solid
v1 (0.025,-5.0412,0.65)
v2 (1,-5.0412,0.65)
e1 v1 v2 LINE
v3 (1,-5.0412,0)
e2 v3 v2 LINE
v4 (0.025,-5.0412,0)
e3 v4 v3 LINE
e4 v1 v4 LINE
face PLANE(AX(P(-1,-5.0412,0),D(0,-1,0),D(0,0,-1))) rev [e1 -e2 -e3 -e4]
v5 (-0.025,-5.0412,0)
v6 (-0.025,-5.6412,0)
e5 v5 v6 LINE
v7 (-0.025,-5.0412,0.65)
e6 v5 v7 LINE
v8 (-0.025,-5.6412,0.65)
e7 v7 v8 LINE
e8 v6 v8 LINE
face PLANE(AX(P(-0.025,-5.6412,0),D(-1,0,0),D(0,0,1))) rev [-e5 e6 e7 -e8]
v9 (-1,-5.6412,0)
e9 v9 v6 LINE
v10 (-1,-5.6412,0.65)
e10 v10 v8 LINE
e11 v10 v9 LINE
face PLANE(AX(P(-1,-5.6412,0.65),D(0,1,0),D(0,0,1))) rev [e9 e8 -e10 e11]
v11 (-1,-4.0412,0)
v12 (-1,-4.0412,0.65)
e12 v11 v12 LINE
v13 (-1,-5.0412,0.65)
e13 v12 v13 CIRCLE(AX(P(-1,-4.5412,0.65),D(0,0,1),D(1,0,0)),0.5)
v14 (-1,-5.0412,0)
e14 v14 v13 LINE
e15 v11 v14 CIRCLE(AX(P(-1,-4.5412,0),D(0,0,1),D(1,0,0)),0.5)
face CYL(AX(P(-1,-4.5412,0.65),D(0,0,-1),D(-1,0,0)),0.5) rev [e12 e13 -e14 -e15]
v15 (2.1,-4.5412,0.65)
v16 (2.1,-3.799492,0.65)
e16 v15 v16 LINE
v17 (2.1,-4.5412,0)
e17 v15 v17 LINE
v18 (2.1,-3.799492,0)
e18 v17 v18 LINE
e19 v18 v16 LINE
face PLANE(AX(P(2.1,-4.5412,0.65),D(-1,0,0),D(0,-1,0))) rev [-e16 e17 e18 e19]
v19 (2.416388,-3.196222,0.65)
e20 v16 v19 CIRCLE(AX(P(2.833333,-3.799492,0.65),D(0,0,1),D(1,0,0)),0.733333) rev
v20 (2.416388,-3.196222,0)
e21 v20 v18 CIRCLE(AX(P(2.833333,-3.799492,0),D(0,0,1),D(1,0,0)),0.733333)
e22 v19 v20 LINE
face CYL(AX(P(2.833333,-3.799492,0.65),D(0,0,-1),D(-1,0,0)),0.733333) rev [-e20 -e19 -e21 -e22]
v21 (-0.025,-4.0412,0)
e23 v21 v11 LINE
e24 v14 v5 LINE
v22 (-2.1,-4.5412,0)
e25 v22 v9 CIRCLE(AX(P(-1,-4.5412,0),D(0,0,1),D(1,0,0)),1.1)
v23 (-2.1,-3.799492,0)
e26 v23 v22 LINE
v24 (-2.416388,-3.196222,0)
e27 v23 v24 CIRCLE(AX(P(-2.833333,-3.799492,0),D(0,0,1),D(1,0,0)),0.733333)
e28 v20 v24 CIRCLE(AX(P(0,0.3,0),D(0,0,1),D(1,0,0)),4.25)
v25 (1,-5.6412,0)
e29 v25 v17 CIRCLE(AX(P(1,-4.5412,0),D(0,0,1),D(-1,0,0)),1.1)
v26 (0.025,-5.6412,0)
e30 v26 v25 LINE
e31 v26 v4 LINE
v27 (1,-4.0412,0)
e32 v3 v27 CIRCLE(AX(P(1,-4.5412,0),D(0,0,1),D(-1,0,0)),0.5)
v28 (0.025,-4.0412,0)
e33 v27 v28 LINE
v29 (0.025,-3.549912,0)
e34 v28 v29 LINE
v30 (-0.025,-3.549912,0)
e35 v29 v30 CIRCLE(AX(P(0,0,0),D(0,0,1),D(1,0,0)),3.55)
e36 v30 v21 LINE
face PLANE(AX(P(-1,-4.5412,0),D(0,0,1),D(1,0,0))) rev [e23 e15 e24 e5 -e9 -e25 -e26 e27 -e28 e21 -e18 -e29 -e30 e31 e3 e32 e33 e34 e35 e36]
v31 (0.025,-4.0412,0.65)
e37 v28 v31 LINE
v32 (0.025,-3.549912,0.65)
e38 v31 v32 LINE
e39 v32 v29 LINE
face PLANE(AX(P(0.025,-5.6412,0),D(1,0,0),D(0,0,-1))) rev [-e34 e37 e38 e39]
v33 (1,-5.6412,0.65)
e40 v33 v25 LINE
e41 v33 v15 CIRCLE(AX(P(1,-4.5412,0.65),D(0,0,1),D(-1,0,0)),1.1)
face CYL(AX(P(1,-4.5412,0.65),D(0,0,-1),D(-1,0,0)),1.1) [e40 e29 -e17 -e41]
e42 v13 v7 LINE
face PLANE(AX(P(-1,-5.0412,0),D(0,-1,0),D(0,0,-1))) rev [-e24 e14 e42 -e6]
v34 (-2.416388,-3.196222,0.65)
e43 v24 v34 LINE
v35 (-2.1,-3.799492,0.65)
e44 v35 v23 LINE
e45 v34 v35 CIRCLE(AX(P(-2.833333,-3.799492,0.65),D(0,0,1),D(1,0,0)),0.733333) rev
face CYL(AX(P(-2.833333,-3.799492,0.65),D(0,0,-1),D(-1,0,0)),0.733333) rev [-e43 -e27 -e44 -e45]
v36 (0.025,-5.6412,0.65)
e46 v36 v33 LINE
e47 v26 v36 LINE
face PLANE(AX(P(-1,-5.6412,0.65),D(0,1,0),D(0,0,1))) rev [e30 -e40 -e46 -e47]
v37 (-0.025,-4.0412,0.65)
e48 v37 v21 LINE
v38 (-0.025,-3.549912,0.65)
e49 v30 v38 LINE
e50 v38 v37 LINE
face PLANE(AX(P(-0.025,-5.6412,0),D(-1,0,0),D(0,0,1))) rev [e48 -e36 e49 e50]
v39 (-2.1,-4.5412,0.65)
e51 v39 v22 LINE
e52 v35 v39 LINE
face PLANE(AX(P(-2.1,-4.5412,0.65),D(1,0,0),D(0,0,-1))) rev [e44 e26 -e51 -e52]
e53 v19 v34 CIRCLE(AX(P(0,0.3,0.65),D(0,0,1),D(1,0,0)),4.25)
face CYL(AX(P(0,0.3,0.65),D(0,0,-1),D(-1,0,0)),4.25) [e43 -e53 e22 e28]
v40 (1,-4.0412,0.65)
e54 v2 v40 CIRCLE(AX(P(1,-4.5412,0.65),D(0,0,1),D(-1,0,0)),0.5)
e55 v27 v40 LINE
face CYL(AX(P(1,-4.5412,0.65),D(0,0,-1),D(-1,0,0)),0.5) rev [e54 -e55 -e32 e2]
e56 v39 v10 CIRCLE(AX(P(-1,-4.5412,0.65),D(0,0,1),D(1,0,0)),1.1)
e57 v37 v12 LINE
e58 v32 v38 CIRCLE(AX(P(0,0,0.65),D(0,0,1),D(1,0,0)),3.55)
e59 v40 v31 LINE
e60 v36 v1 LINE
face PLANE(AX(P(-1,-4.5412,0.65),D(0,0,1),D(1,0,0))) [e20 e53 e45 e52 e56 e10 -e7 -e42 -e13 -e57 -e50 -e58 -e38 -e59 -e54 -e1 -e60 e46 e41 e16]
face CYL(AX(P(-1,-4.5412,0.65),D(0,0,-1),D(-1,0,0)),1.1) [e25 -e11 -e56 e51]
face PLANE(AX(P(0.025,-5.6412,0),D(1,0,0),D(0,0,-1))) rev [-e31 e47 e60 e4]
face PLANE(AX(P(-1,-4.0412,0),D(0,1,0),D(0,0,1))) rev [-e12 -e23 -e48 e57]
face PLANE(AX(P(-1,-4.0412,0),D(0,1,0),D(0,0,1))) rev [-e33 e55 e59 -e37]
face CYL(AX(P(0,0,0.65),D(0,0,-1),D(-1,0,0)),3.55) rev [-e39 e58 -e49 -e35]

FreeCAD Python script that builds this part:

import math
import FreeCAD as App
import Part
import Sketcher

V = App.Vector


def edges_at(feature, points):
    """Names of the edges that pass closest to the given points."""
    edges = feature.Shape.Edges
    near = lambda p: min(range(len(edges)), key=lambda i: edges[i].distToShape(Part.Vertex(*p))[0])
    return sorted({f"Edge{near(p) + 1}" for p in points})

doc = App.newDocument("Part")
body = doc.addObject("PartDesign::Body", "Body")

# Sketch on XY plane
sketch1 = doc.addObject("Sketcher::SketchObject", "Sketch")
body.addObject(sketch1)
sketch1.AttachmentSupport = (doc.XY_Plane, [""])
sketch1.MapMode = "FlatFace"
sketch1.addGeometry([
    Part.LineSegment(V(-1, -5.6, 0), V(1, -5.6, 0)),  # 0
    Part.ArcOfCircle(Part.Circle(V(1, -4.5, 0), V(0, 0, 1), 1.1), math.radians(-90), math.radians(0)),  # 1
    Part.LineSegment(V(2.1, -4.5, 0), V(2.1, -3.4, 0)),  # 2
    Part.ArcOfCircle(Part.Circle(V(0, 0.3, 0), V(0, 0, 1), 4.2), math.radians(-60), math.radians(240)),  # 3
    Part.LineSegment(V(-2.1, -3.4, 0), V(-2.1, -4.5, 0)),  # 4
    Part.ArcOfCircle(Part.Circle(V(-1, -4.5, 0), V(0, 0, 1), 1.1), math.radians(-180), math.radians(-90)),  # 5
    Part.Circle(V(-1, -4.5, 0), V(0, 0, 1), 0.5),  # 6
    Part.Circle(V(1, -4.5, 0), V(0, 0, 1), 0.5),  # 7
    Part.Circle(V(0, 0, 0), V(0, 0, 1), 3.5),  # 8
], False)
sketch1.addConstraint([
    Sketcher.Constraint("Tangent", 0, 2, 1, 1),
    Sketcher.Constraint("Tangent", 1, 2, 2, 1),
    Sketcher.Constraint("Coincident", 2, 2, 3, 1),
    Sketcher.Constraint("Coincident", 3, 2, 4, 1),
    Sketcher.Constraint("Tangent", 4, 2, 5, 1),
    Sketcher.Constraint("Tangent", 5, 2, 0, 1),
    Sketcher.Constraint("Horizontal", 0),
    Sketcher.Constraint("Vertical", 2),
    Sketcher.Constraint("Vertical", 4),
    Sketcher.Constraint("Coincident", 8, 3, -1, 1),
    Sketcher.Constraint("Coincident", 6, 3, 5, 3),
    Sketcher.Constraint("Coincident", 7, 3, 1, 3),
    Sketcher.Constraint("Equal", 1, 5),
    Sketcher.Constraint("Equal", 6, 7),
    Sketcher.Constraint("Symmetric", 2, 2, 3, 2, -2),
    Sketcher.Constraint("Diameter", 6, 1.0),
    Sketcher.Constraint("Diameter", 8, 7.1),
    Sketcher.Constraint("Radius", 1, 1.1),
    Sketcher.Constraint("DistanceX", 0, 1, 0, 2, 2.0),
    Sketcher.Constraint("Radius", 3, 4.25),
    Sketcher.Constraint("DistanceY", -1, 1, 3, 3, 0.3),
    Sketcher.Constraint("DistanceY", 2, 1, 2, 2, 1.146271),
])
pad1 = doc.addObject("PartDesign::Pad", "Pad")
body.addObject(pad1)
pad1.Profile = sketch1
pad1.Length = 0.65

# Sketch on XY plane
sketch2 = doc.addObject("Sketcher::SketchObject", "Sketch001")
body.addObject(sketch2)
sketch2.AttachmentSupport = (doc.XY_Plane, [""])
sketch2.MapMode = "FlatFace"
sketch2.AttachmentOffset = App.Placement(V(0, 0, 0.65), App.Rotation())
sketch2.addGeometry([
    Part.LineSegment(V(-0.03, 0, 0), V(-0.03, -5.64, 0)),
    Part.LineSegment(V(-0.03, -5.64, 0), V(0.03, -5.64, 0)),
    Part.LineSegment(V(0.03, -5.64, 0), V(0.03, 0, 0)),
    Part.LineSegment(V(0.03, 0, 0), V(-0.03, 0, 0)),
], False)
sketch2.addConstraint([
    Sketcher.Constraint("Coincident", 0, 2, 1, 1),
    Sketcher.Constraint("Coincident", 1, 2, 2, 1),
    Sketcher.Constraint("Coincident", 2, 2, 3, 1),
    Sketcher.Constraint("Coincident", 3, 2, 0, 1),
    Sketcher.Constraint("Vertical", 0),
    Sketcher.Constraint("Horizontal", 1),
    Sketcher.Constraint("Vertical", 2),
    Sketcher.Constraint("Horizontal", 3),
    Sketcher.Constraint("Symmetric", 2, 2, 3, 2, -1, 1),
    Sketcher.Constraint("DistanceX", 1, 1, 1, 2, 0.05),
    Sketcher.Constraint("DistanceY", 0, 2, 0, 1, 5.6412),
])
pocket1 = doc.addObject("PartDesign::Pocket", "Pocket")
body.addObject(pocket1)
pocket1.Profile = sketch2
pocket1.Type = "ThroughAll"
doc.recompute()

fillet = doc.addObject("PartDesign::Fillet", "Fillet")
body.addObject(fillet)
fillet.Base = (pocket1, edges_at(pocket1, [(-2.1, -3.395, 0.325), (2.1, -3.395, 0.325)]))
fillet.Radius = 0.733333

# Sketch on XY plane
sketch3 = doc.addObject("Sketcher::SketchObject", "Sketch002")
body.addObject(sketch3)
sketch3.AttachmentSupport = (doc.XY_Plane, [""])
sketch3.MapMode = "FlatFace"
sketch3.AttachmentOffset = App.Placement(V(0, 0, 0.65), App.Rotation())
sketch3.addGeometry([
    Part.LineSegment(V(1, -4, 0), V(-1, -4, 0)),
    Part.ArcOfCircle(Part.Circle(V(-1, -4.5, 0), V(0, 0, 1), 0.5), math.radians(90), math.radians(270)),
    Part.LineSegment(V(-1, -5, 0), V(1, -5, 0)),
    Part.ArcOfCircle(Part.Circle(V(1, -4.5, 0), V(0, 0, 1), 0.5), math.radians(-90), math.radians(90)),
], False)
sketch3.addConstraint([
    Sketcher.Constraint("Tangent", 0, 2, 1, 1),
    Sketcher.Constraint("Tangent", 1, 2, 2, 1),
    Sketcher.Constraint("Tangent", 2, 2, 3, 1),
    Sketcher.Constraint("Tangent", 3, 2, 0, 1),
    Sketcher.Constraint("Horizontal", 0),
    Sketcher.Constraint("Horizontal", 2),
    Sketcher.Constraint("Radius", 1, 0.5),
    Sketcher.Constraint("DistanceX", 0, 2, 0, 1, 2.0),
    Sketcher.Constraint("DistanceX", 1, 3, -1, 1, 1.0),
    Sketcher.Constraint("DistanceY", 1, 3, -1, 1, 4.5412),
])
pocket2 = doc.addObject("PartDesign::Pocket", "Pocket001")
body.addObject(pocket2)
pocket2.Profile = sketch3
pocket2.Type = "ThroughAll"

doc.recompute()
